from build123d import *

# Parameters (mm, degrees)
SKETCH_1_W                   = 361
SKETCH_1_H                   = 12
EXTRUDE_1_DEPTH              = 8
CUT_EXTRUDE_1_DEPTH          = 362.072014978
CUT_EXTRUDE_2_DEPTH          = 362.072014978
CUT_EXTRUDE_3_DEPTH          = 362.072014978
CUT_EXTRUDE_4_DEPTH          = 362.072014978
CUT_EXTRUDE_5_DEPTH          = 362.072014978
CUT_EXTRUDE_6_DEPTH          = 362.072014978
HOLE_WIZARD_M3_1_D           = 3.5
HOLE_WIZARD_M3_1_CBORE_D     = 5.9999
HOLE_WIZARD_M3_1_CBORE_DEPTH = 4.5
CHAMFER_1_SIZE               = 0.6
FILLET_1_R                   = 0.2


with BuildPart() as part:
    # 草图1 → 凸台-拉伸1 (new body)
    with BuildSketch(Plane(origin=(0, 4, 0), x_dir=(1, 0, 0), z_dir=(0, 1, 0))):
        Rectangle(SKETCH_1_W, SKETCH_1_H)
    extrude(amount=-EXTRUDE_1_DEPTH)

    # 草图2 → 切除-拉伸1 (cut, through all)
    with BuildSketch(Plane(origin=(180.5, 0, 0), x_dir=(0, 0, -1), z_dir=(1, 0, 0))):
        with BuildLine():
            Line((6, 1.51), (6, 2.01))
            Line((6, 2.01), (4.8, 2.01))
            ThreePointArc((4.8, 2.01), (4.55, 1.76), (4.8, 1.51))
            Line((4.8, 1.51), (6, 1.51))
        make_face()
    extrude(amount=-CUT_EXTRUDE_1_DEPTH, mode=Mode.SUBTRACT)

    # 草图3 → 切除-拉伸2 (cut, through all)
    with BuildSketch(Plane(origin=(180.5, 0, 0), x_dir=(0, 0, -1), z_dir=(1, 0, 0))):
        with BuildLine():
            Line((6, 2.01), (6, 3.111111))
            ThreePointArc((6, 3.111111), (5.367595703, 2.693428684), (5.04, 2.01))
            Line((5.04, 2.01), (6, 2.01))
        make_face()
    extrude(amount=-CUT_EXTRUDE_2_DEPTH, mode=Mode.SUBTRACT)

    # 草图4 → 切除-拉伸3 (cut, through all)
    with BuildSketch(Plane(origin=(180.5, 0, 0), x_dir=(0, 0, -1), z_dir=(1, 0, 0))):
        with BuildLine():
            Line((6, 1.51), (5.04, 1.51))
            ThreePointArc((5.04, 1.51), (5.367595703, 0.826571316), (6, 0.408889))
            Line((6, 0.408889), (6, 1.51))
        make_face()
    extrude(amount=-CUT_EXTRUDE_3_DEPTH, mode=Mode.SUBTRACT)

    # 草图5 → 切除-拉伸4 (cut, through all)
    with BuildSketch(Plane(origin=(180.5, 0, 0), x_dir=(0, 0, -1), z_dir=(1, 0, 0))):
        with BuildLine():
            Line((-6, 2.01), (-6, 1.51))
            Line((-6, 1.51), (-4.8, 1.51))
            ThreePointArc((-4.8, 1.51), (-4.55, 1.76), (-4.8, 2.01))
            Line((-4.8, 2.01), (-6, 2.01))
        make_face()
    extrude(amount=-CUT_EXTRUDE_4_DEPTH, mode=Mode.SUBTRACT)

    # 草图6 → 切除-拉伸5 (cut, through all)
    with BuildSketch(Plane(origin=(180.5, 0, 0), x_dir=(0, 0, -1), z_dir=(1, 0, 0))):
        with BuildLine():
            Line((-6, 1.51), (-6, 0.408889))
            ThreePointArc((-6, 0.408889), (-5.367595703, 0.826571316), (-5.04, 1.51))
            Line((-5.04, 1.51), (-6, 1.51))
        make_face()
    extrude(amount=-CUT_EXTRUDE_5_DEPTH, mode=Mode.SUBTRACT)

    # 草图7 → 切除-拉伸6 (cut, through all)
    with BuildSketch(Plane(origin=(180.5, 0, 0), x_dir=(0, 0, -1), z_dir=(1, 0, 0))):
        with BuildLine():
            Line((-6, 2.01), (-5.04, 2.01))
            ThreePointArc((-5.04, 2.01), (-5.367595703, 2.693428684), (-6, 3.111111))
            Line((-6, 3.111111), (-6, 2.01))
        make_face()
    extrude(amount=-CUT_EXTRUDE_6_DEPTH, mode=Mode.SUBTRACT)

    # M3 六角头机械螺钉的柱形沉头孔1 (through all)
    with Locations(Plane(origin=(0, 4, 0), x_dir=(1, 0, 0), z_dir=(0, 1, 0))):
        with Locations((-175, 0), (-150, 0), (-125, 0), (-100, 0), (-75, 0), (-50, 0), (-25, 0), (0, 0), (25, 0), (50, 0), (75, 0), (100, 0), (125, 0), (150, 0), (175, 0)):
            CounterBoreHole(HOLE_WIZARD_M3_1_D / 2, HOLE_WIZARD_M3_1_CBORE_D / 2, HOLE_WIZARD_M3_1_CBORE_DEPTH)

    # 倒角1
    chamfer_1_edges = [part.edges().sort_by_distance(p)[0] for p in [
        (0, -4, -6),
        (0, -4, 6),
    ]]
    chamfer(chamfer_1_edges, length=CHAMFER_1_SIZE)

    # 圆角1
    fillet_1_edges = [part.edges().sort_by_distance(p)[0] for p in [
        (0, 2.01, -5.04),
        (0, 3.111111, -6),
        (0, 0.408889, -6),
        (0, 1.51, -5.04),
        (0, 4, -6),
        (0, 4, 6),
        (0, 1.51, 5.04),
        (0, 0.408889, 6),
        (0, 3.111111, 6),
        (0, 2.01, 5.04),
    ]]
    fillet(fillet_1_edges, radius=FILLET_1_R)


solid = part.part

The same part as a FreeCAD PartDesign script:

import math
import FreeCAD as App
import Part
import Sketcher
Q = App.Units.Quantity


def edges_at(feature, points):
    """Names of the edges that pass closest to the given points."""
    edges = feature.Shape.Edges
    near = lambda p: min(range(len(edges)), key=lambda i: edges[i].distToShape(Part.Vertex(*p))[0])
    return sorted({f"Edge{near(p) + 1}" for p in points})


def add_polygon(sketch, points):
    """Adds a closed chain of lines whose ends are joined by coincident constraints."""
    first, n = sketch.GeometryCount, len(points)
    for a, b in zip(points, points[1:] + points[:1]):
        sketch.addGeometry(Part.LineSegment(App.Vector(*a, 0), App.Vector(*b, 0)), False)
    for i in range(n):
        sketch.addConstraint(Sketcher.Constraint("Coincident", first + i, 2, first + (i + 1) % n, 1))

doc = App.newDocument("Part")
body = doc.addObject("PartDesign::Body", "Body")

# Sketch on XZ plane
sketch1 = body.newObject("Sketcher::SketchObject", "Sketch")
sketch1.AttachmentSupport = (doc.getObject("XZ_Plane"), [""])
sketch1.MapMode = "FlatFace"
sketch1.AttachmentOffset = App.Placement(App.Vector(0, 0, -4), App.Rotation())
add_polygon(sketch1, [(-180, -6), (-180, 6), (180, 6), (180, -6)])  # lines 0-3
sketch1.addConstraint(Sketcher.Constraint("Vertical", 0))
sketch1.addConstraint(Sketcher.Constraint("Horizontal", 1))
sketch1.addConstraint(Sketcher.Constraint("Vertical", 2))
sketch1.addConstraint(Sketcher.Constraint("Horizontal", 3))
sketch1.addConstraint(Sketcher.Constraint("Symmetric", 0, 2, 2, 2, -1, 1))
sketch1.addConstraint(Sketcher.Constraint("DistanceX", 1, 1, 1, 2, Q("361 mm")))
sketch1.addConstraint(Sketcher.Constraint("DistanceY", 0, 1, 0, 2, Q("12 mm")))
pad1 = body.newObject("PartDesign::Pad", "Pad")
pad1.Profile = sketch1
pad1.Length = 8

# Sketch on YZ plane
sketch2 = body.newObject("Sketcher::SketchObject", "Sketch001")
sketch2.AttachmentSupport = (doc.getObject("YZ_Plane"), [""])
sketch2.MapMode = "FlatFace"
sketch2.AttachmentOffset = App.Placement(App.Vector(0, 0, 180.5), App.Rotation())
sketch2.addGeometry(Part.LineSegment(App.Vector(1.51, -6, 0), App.Vector(2.01, -6, 0)), False)
sketch2.addGeometry(Part.LineSegment(App.Vector(2.01, -6, 0), App.Vector(2.01, -4.8, 0)), False)
sketch2.addGeometry(Part.ArcOfCircle(Part.Circle(App.Vector(1.76, -4.8, 0), App.Vector(0, 0, 1), 0.25), math.radians(0), math.radians(180)), False)
sketch2.addGeometry(Part.LineSegment(App.Vector(1.51, -4.8, 0), App.Vector(1.51, -6, 0)), False)
sketch2.addConstraint(Sketcher.Constraint("Coincident", 0, 2, 1, 1))
sketch2.addConstraint(Sketcher.Constraint("Tangent", 1, 2, 2, 1))
sketch2.addConstraint(Sketcher.Constraint("Tangent", 2, 2, 3, 1))
sketch2.addConstraint(Sketcher.Constraint("Coincident", 3, 2, 0, 1))
sketch2.addConstraint(Sketcher.Constraint("Horizontal", 0))
sketch2.addConstraint(Sketcher.Constraint("Vertical", 1))
sketch2.addConstraint(Sketcher.Constraint("Vertical", 3))
sketch2.addConstraint(Sketcher.Constraint("Radius", 2, Q("0.25 mm")))
sketch2.addConstraint(Sketcher.Constraint("DistanceY", 1, 1, 1, 2, Q("1.2 mm")))
sketch2.addConstraint(Sketcher.Constraint("DistanceY", 0, 2, -1, 1, Q("6 mm")))
sketch2.addConstraint(Sketcher.Constraint("DistanceX", -1, 1, 2, 3, Q("1.76 mm")))
pocket1 = body.newObject("PartDesign::Pocket", "Pocket")
pocket1.Profile = sketch2
pocket1.Type = "ThroughAll"

# Sketch on YZ plane
sketch3 = body.newObject("Sketcher::SketchObject", "Sketch002")
sketch3.AttachmentSupport = (doc.getObject("YZ_Plane"), [""])
sketch3.MapMode = "FlatFace"
sketch3.AttachmentOffset = App.Placement(App.Vector(0, 0, 180.5), App.Rotation())
sketch3.addGeometry(Part.LineSegment(App.Vector(2, -6, 0), App.Vector(3.1, -6, 0)), False)
sketch3.addGeometry(Part.ArcOfCircle(Part.Circle(App.Vector(1.8, -6.4, 0), App.Vector(0, 0, 1), 1.4), math.radians(18), math.radians(80)), False)
sketch3.addGeometry(Part.LineSegment(App.Vector(2, -5, 0), App.Vector(2, -6, 0)), False)
sketch3.addConstraint(Sketcher.Constraint("Coincident", 0, 2, 1, 1))
sketch3.addConstraint(Sketcher.Constraint("Coincident", 1, 2, 2, 1))
sketch3.addConstraint(Sketcher.Constraint("Coincident", 2, 2, 0, 1))
sketch3.addConstraint(Sketcher.Constraint("Horizontal", 0))
sketch3.addConstraint(Sketcher.Constraint("Vertical", 2))
sketch3.addConstraint(Sketcher.Constraint("DistanceY", 0, 2, -1, 1, Q("6 mm")))
sketch3.addConstraint(Sketcher.Constraint("DistanceY", 2, 2, 2, 1, Q("0.96 mm")))
sketch3.addConstraint(Sketcher.Constraint("DistanceX", -1, 1, 1, 3, Q("1.76 mm")))
sketch3.addConstraint(Sketcher.Constraint("DistanceX", -1, 1, 1, 2, Q("2.01 mm")))
sketch3.addConstraint(Sketcher.Constraint("Radius", 1, Q("1.420404 mm")))
pocket2 = body.newObject("PartDesign::Pocket", "Pocket001")
pocket2.Profile = sketch3
pocket2.Type = "ThroughAll"

# Sketch on YZ plane
sketch4 = body.newObject("Sketcher::SketchObject", "Sketch003")
sketch4.AttachmentSupport = (doc.getObject("YZ_Plane"), [""])
sketch4.MapMode = "FlatFace"
sketch4.AttachmentOffset = App.Placement(App.Vector(0, 0, 180.5), App.Rotation())
sketch4.addGeometry(Part.LineSegment(App.Vector(1.5, -6, 0), App.Vector(1.5, -5, 0)), False)
sketch4.addGeometry(Part.ArcOfCircle(Part.Circle(App.Vector(1.8, -6.4, 0), App.Vector(0, 0, 1), 1.4), math.radians(100), math.radians(162)), False)
sketch4.addGeometry(Part.LineSegment(App.Vector(0.4, -6, 0), App.Vector(1.5, -6, 0)), False)
sketch4.addConstraint(Sketcher.Constraint("Coincident", 0, 2, 1, 1))
sketch4.addConstraint(Sketcher.Constraint("Coincident", 1, 2, 2, 1))
sketch4.addConstraint(Sketcher.Constraint("Coincident", 2, 2, 0, 1))
sketch4.addConstraint(Sketcher.Constraint("Vertical", 0))
sketch4.addConstraint(Sketcher.Constraint("Horizontal", 2))
sketch4.addConstraint(Sketcher.Constraint("DistanceY", 1, 2, -1, 1, Q("6 mm")))
sketch4.addConstraint(Sketcher.Constraint("DistanceY", 0, 1, 0, 2, Q("0.96 mm")))
sketch4.addConstraint(Sketcher.Constraint("DistanceX", -1, 1, 1, 3, Q("1.76 mm")))
sketch4.addConstraint(Sketcher.Constraint("DistanceX", -1, 1, 0, 2, Q("1.51 mm")))
sketch4.addConstraint(Sketcher.Constraint("Radius", 1, Q("1.420404 mm")))
pocket3 = body.newObject("PartDesign::Pocket", "Pocket002")
pocket3.Profile = sketch4
pocket3.Type = "ThroughAll"

# Sketch on YZ plane
sketch5 = body.newObject("Sketcher::SketchObject", "Sketch004")
sketch5.AttachmentSupport = (doc.getObject("YZ_Plane"), [""])
sketch5.MapMode = "FlatFace"
sketch5.AttachmentOffset = App.Placement(App.Vector(0, 0, 180.5), App.Rotation())
sketch5.addGeometry(Part.LineSegment(App.Vector(2.01, 6, 0), App.Vector(1.51, 6, 0)), False)
sketch5.addGeometry(Part.LineSegment(App.Vector(1.51, 6, 0), App.Vector(1.51, 4.8, 0)), False)
sketch5.addGeometry(Part.ArcOfCircle(Part.Circle(App.Vector(1.76, 4.8, 0), App.Vector(0, 0, 1), 0.25), math.radians(180), math.radians(360)), False)
sketch5.addGeometry(Part.LineSegment(App.Vector(2.01, 4.8, 0), App.Vector(2.01, 6, 0)), False)
sketch5.addConstraint(Sketcher.Constraint("Coincident", 0, 2, 1, 1))
sketch5.addConstraint(Sketcher.Constraint("Tangent", 1, 2, 2, 1))
sketch5.addConstraint(Sketcher.Constraint("Tangent", 2, 2, 3, 1))
sketch5.addConstraint(Sketcher.Constraint("Coincident", 3, 2, 0, 1))
sketch5.addConstraint(Sketcher.Constraint("Horizontal", 0))
sketch5.addConstraint(Sketcher.Constraint("Vertical", 1))
sketch5.addConstraint(Sketcher.Constraint("Vertical", 3))
sketch5.addConstraint(Sketcher.Constraint("Radius", 2, Q("0.25 mm")))
sketch5.addConstraint(Sketcher.Constraint("DistanceY", 1, 2, 1, 1, Q("1.2 mm")))
sketch5.addConstraint(Sketcher.Constraint("DistanceY", -1, 1, 0, 2, Q("6 mm")))
sketch5.addConstraint(Sketcher.Constraint("DistanceX", -1, 1, 2, 3, Q("1.76 mm")))
pocket4 = body.newObject("PartDesign::Pocket", "Pocket003")
pocket4.Profile = sketch5
pocket4.Type = "ThroughAll"

# Sketch on YZ plane
sketch6 = body.newObject("Sketcher::SketchObject", "Sketch005")
sketch6.AttachmentSupport = (doc.getObject("YZ_Plane"), [""])
sketch6.MapMode = "FlatFace"
sketch6.AttachmentOffset = App.Placement(App.Vector(0, 0, 180.5), App.Rotation())
sketch6.addGeometry(Part.LineSegment(App.Vector(1.5, 6, 0), App.Vector(0.4, 6, 0)), False)
sketch6.addGeometry(Part.ArcOfCircle(Part.Circle(App.Vector(1.8, 6.4, 0), App.Vector(0, 0, 1), 1.4), math.radians(-162), math.radians(-100)), False)
sketch6.addGeometry(Part.LineSegment(App.Vector(1.5, 5, 0), App.Vector(1.5, 6, 0)), False)
sketch6.addConstraint(Sketcher.Constraint("Coincident", 0, 2, 1, 1))
sketch6.addConstraint(Sketcher.Constraint("Coincident", 1, 2, 2, 1))
sketch6.addConstraint(Sketcher.Constraint("Coincident", 2, 2, 0, 1))
sketch6.addConstraint(Sketcher.Constraint("Horizontal", 0))
sketch6.addConstraint(Sketcher.Constraint("Vertical", 2))
sketch6.addConstraint(Sketcher.Constraint("DistanceY", -1, 1, 0, 2, Q("6 mm")))
sketch6.addConstraint(Sketcher.Constraint("DistanceY", 2, 1, 2, 2, Q("0.96 mm")))
sketch6.addConstraint(Sketcher.Constraint("DistanceX", -1, 1, 1, 3, Q("1.76 mm")))
sketch6.addConstraint(Sketcher.Constraint("DistanceX", -1, 1, 1, 2, Q("1.51 mm")))
sketch6.addConstraint(Sketcher.Constraint("Radius", 1, Q("1.420404 mm")))
pocket5 = body.newObject("PartDesign::Pocket", "Pocket004")
pocket5.Profile = sketch6
pocket5.Type = "ThroughAll"

# Sketch on YZ plane
sketch7 = body.newObject("Sketcher::SketchObject", "Sketch006")
sketch7.AttachmentSupport = (doc.getObject("YZ_Plane"), [""])
sketch7.MapMode = "FlatFace"
sketch7.AttachmentOffset = App.Placement(App.Vector(0, 0, 180.5), App.Rotation())
sketch7.addGeometry(Part.LineSegment(App.Vector(2, 6, 0), App.Vector(2, 5, 0)), False)
sketch7.addGeometry(Part.ArcOfCircle(Part.Circle(App.Vector(1.8, 6.4, 0), App.Vector(0, 0, 1), 1.4), math.radians(-80), math.radians(-18)), False)
sketch7.addGeometry(Part.LineSegment(App.Vector(3.1, 6, 0), App.Vector(2, 6, 0)), False)
sketch7.addConstraint(Sketcher.Constraint("Coincident", 0, 2, 1, 1))
sketch7.addConstraint(Sketcher.Constraint("Coincident", 1, 2, 2, 1))
sketch7.addConstraint(Sketcher.Constraint("Coincident", 2, 2, 0, 1))
sketch7.addConstraint(Sketcher.Constraint("Vertical", 0))
sketch7.addConstraint(Sketcher.Constraint("Horizontal", 2))
sketch7.addConstraint(Sketcher.Constraint("DistanceY", -1, 1, 1, 2, Q("6 mm")))
sketch7.addConstraint(Sketcher.Constraint("DistanceY", 0, 2, 0, 1, Q("0.96 mm")))
sketch7.addConstraint(Sketcher.Constraint("DistanceX", -1, 1, 1, 3, Q("1.76 mm")))
sketch7.addConstraint(Sketcher.Constraint("DistanceX", -1, 1, 0, 2, Q("2.01 mm")))
sketch7.addConstraint(Sketcher.Constraint("Radius", 1, Q("1.420404 mm")))
pocket6 = body.newObject("PartDesign::Pocket", "Pocket005")
pocket6.Profile = sketch7
pocket6.Type = "ThroughAll"

# Sketch on XZ plane
sketch8 = body.newObject("Sketcher::SketchObject", "Sketch007")
sketch8.AttachmentSupport = (doc.getObject("XZ_Plane"), [""])
sketch8.MapMode = "FlatFace"
sketch8.AttachmentOffset = App.Placement(App.Vector(0, 0, -4), App.Rotation())
sketch8.addGeometry(Part.Circle(App.Vector(-175, 0, 0), App.Vector(0, 0, 1), 1.8), False)
sketch8.addGeometry(Part.Circle(App.Vector(-150, 0, 0), App.Vector(0, 0, 1), 1.8), False)
sketch8.addGeometry(Part.Circle(App.Vector(-125, 0, 0), App.Vector(0, 0, 1), 1.8), False)
sketch8.addGeometry(Part.Circle(App.Vector(-100, 0, 0), App.Vector(0, 0, 1), 1.8), False)
sketch8.addGeometry(Part.Circle(App.Vector(-75, 0, 0), App.Vector(0, 0, 1), 1.8), False)
sketch8.addGeometry(Part.Circle(App.Vector(-50, 0, 0), App.Vector(0, 0, 1), 1.8), False)
sketch8.addGeometry(Part.Circle(App.Vector(-25, 0, 0), App.Vector(0, 0, 1), 1.8), False)
sketch8.addGeometry(Part.Circle(App.Vector(0, 0, 0), App.Vector(0, 0, 1), 1.8), False)
sketch8.addGeometry(Part.Circle(App.Vector(25, 0, 0), App.Vector(0, 0, 1), 1.8), False)
sketch8.addGeometry(Part.Circle(App.Vector(50, 0, 0), App.Vector(0, 0, 1), 1.8), False)
sketch8.addGeometry(Part.Circle(App.Vector(75, 0, 0), App.Vector(0, 0, 1), 1.8), False)
sketch8.addGeometry(Part.Circle(App.Vector(100, 0, 0), App.Vector(0, 0, 1), 1.8), False)
sketch8.addGeometry(Part.Circle(App.Vector(125, 0, 0), App.Vector(0, 0, 1), 1.8), False)
sketch8.addGeometry(Part.Circle(App.Vector(150, 0, 0), App.Vector(0, 0, 1), 1.8), False)
sketch8.addGeometry(Part.Circle(App.Vector(175, 0, 0), App.Vector(0, 0, 1), 1.8), False)
sketch8.addConstraint(Sketcher.Constraint("Coincident", 7, 3, -1, 1))
sketch8.addConstraint(Sketcher.Constraint("Equal", 0, 1))
sketch8.addConstraint(Sketcher.Constraint("Equal", 1, 2))
sketch8.addConstraint(Sketcher.Constraint("Equal", 2, 3))
sketch8.addConstraint(Sketcher.Constraint("Equal", 3, 4))
sketch8.addConstraint(Sketcher.Constraint("Equal", 4, 5))
sketch8.addConstraint(Sketcher.Constraint("Equal", 5, 6))
sketch8.addConstraint(Sketcher.Constraint("Equal", 6, 7))
sketch8.addConstraint(Sketcher.Constraint("Equal", 7, 8))
sketch8.addConstraint(Sketcher.Constraint("Equal", 8, 9))
sketch8.addConstraint(Sketcher.Constraint("Equal", 9, 10))
sketch8.addConstraint(Sketcher.Constraint("Equal", 10, 11))
sketch8.addConstraint(Sketcher.Constraint("Equal", 11, 12))
sketch8.addConstraint(Sketcher.Constraint("Equal", 12, 13))
sketch8.addConstraint(Sketcher.Constraint("Equal", 13, 14))
sketch8.addConstraint(Sketcher.Constraint("Symmetric", 6, 3, 8, 3, -1, 1))
sketch8.addConstraint(Sketcher.Constraint("Symmetric", 5, 3, 9, 3, -1, 1))
sketch8.addConstraint(Sketcher.Constraint("Symmetric", 4, 3, 10, 3, -1, 1))
sketch8.addConstraint(Sketcher.Constraint("Symmetric", 3, 3, 11, 3, -1, 1))
sketch8.addConstraint(Sketcher.Constraint("Symmetric", 2, 3, 12, 3, -1, 1))
sketch8.addConstraint(Sketcher.Constraint("Symmetric", 1, 3, 13, 3, -1, 1))
sketch8.addConstraint(Sketcher.Constraint("Symmetric", 0, 3, 14, 3, -1, 1))
sketch8.addConstraint(Sketcher.Constraint("PointOnObject", 0, 3, -1))
sketch8.addConstraint(Sketcher.Constraint("PointOnObject", 1, 3, -1))
sketch8.addConstraint(Sketcher.Constraint("PointOnObject", 2, 3, -1))
sketch8.addConstraint(Sketcher.Constraint("PointOnObject", 3, 3, -1))
sketch8.addConstraint(Sketcher.Constraint("PointOnObject", 4, 3, -1))
sketch8.addConstraint(Sketcher.Constraint("PointOnObject", 5, 3, -1))
sketch8.addConstraint(Sketcher.Constraint("PointOnObject", 6, 3, -1))
sketch8.addConstraint(Sketcher.Constraint("Diameter", 0, Q("3.5 mm")))
sketch8.addConstraint(Sketcher.Constraint("DistanceX", 0, 3, -1, 1, Q("175 mm")))
sketch8.addConstraint(Sketcher.Constraint("DistanceX", 1, 3, -1, 1, Q("150 mm")))
sketch8.addConstraint(Sketcher.Constraint("DistanceX", 2, 3, -1, 1, Q("125 mm")))
sketch8.addConstraint(Sketcher.Constraint("DistanceX", 3, 3, -1, 1, Q("100 mm")))
sketch8.addConstraint(Sketcher.Constraint("DistanceX", 4, 3, -1, 1, Q("75 mm")))
sketch8.addConstraint(Sketcher.Constraint("DistanceX", 5, 3, -1, 1, Q("50 mm")))
sketch8.addConstraint(Sketcher.Constraint("DistanceX", 6, 3, -1, 1, Q("25 mm")))
doc.recompute()
hole = body.newObject("PartDesign::Hole", "Hole")
hole.Profile = sketch8
hole.ThreadType = "None"
hole.Diameter = 3.5
hole.DepthType = "ThroughAll"
hole.HoleCutType = "Counterbore"
hole.HoleCutDiameter = 5.9999
hole.HoleCutDepth = 4.5
hole.Reversed = True
doc.recompute()

chamfer = body.newObject("PartDesign::Chamfer", "Chamfer")
chamfer.Base = (hole, edges_at(hole, [(0, -4, -6), (0, -4, 6)]))
chamfer.Size = 0.6
doc.recompute()

fillet = body.newObject("PartDesign::Fillet", "Fillet")
fillet.Base = (chamfer, edges_at(chamfer, [
    (0, 2.01, -5.04),
    (0, 3.111, -6),
    (0, 0.409, -6),
    (0, 1.51, -5.04),
    (0, 4, -6),
    (0, 4, 6),
    (0, 1.51, 5.04),
    (0, 0.409, 6),
    (0, 3.111, 6),
    (0, 2.01, 5.04),
]))
fillet.Radius = 0.2

doc.recompute()
